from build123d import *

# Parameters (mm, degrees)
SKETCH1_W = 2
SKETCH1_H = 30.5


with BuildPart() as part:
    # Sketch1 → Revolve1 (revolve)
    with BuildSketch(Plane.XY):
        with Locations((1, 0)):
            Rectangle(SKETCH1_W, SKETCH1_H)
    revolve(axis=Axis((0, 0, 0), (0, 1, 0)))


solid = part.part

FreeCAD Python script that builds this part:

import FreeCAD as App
import Part
import Sketcher


def add_polygon(sketch, points):
    """Adds a closed chain of lines whose ends are joined by coincident constraints."""
    first, n = sketch.GeometryCount, len(points)
    for a, b in zip(points, points[1:] + points[:1]):
        sketch.addGeometry(Part.LineSegment(App.Vector(*a, 0), App.Vector(*b, 0)), False)
    for i in range(n):
        sketch.addConstraint(Sketcher.Constraint("Coincident", first + i, 2, first + (i + 1) % n, 1))

doc = App.newDocument("Part")
body = doc.addObject("PartDesign::Body", "Body")

# Sketch on XY plane
sketch1 = doc.addObject("Sketcher::SketchObject", "Sketch")
body.addObject(sketch1)
sketch1.AttachmentSupport = (doc.XY_Plane, [""])
sketch1.MapMode = "FlatFace"
add_polygon(sketch1, [(0, 15.2), (0, -15.2), (2, -15.2), (2, 15.2)])  # lines 0-3
sketch1.addConstraint(Sketcher.Constraint("Vertical", 0))
sketch1.addConstraint(Sketcher.Constraint("Horizontal", 1))
sketch1.addConstraint(Sketcher.Constraint("Vertical", 2))
sketch1.addConstraint(Sketcher.Constraint("Horizontal", 3))
sketch1.addConstraint(Sketcher.Constraint("Symmetric", 0, 2, 3, 2, -1, 1))
sketch1.addConstraint(Sketcher.Constraint("DistanceX", 1, 1, 1, 2, 2.0))
sketch1.addConstraint(Sketcher.Constraint("DistanceY", 0, 2, 0, 1, 30.5))
revolution = doc.addObject("PartDesign::Revolution", "Revolution")
body.addObject(revolution)
revolution.Profile = sketch1
revolution.ReferenceAxis = (sketch1, ["V_Axis"])
revolution.Angle = 360

doc.recompute()
